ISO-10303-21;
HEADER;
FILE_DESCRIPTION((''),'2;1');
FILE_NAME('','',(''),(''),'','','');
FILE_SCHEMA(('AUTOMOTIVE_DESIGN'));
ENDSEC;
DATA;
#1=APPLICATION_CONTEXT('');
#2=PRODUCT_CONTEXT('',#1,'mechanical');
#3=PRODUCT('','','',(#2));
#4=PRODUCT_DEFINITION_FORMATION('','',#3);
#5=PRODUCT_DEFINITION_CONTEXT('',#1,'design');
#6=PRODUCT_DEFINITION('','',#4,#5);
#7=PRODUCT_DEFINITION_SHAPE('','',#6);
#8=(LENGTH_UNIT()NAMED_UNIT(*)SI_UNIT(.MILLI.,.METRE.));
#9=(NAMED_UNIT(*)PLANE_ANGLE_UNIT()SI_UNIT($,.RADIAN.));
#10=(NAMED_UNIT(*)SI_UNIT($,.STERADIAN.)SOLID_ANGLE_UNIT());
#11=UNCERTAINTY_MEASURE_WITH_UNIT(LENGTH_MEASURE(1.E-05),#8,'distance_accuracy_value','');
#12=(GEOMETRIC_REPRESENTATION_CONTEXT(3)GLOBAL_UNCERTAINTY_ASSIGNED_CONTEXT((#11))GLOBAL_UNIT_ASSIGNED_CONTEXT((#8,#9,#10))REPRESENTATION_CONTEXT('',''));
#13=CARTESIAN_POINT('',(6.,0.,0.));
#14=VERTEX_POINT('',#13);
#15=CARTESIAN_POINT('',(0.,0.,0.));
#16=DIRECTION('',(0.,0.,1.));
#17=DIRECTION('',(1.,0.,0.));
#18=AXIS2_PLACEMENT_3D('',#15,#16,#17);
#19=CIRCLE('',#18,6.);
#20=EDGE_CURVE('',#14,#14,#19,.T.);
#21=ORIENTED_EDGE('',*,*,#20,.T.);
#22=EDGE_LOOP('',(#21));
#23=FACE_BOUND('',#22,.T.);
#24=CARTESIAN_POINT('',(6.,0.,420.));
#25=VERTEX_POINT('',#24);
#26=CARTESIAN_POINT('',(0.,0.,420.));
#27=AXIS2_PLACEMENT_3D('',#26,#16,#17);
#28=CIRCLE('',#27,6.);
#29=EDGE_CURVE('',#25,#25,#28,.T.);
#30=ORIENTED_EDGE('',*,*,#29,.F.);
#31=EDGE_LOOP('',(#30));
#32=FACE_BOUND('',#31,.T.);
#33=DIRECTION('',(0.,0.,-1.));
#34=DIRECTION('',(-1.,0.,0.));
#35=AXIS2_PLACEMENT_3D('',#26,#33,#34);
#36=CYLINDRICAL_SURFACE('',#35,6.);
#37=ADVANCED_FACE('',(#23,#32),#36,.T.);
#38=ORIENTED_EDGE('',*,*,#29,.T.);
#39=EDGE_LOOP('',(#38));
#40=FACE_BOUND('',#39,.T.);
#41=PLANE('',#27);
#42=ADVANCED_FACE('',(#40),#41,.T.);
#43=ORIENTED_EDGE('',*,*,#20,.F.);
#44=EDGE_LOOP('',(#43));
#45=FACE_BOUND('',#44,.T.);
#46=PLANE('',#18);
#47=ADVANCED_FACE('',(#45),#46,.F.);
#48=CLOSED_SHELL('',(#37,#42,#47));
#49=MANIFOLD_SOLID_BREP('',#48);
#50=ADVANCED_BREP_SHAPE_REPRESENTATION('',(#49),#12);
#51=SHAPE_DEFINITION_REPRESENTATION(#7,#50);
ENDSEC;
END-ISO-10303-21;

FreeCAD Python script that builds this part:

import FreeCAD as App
import Part
import Sketcher
from FreeCAD import Vector

doc = App.newDocument("Part")
params = doc.addObject("Spreadsheet::Sheet", "Params")
for row, (alias, value) in enumerate([
    ("sketch1_diameter", "12 mm"),
    ("pad1_length", "420 mm"),
], start=1):
    params.set(f"A{row}", alias)
    params.set(f"B{row}", "=" + value)
    params.setAlias(f"B{row}", alias)

body = doc.addObject("PartDesign::Body", "Body")

sketch1 = body.newObject("Sketcher::SketchObject", "Sketch")
sketch1.AttachmentSupport = (doc.getObject("XY_Plane"), [""])
sketch1.MapMode = "FlatFace"
sketch1.addGeometry(Part.Circle(Vector(0, 0, 0), Vector(0, 0, 1), 6), False)
sketch1.addConstraint(Sketcher.Constraint("Coincident", 0, 3, -1, 1))
sketch1.addConstraint(Sketcher.Constraint("Diameter", 0, 12.0))
sketch1.setExpression("Constraints[1]", "Params.sketch1_diameter")
pad1 = body.newObject("PartDesign::Pad", "Pad")
pad1.Profile = sketch1
pad1.setExpression("Length", "Params.pad1_length")

doc.recompute()
